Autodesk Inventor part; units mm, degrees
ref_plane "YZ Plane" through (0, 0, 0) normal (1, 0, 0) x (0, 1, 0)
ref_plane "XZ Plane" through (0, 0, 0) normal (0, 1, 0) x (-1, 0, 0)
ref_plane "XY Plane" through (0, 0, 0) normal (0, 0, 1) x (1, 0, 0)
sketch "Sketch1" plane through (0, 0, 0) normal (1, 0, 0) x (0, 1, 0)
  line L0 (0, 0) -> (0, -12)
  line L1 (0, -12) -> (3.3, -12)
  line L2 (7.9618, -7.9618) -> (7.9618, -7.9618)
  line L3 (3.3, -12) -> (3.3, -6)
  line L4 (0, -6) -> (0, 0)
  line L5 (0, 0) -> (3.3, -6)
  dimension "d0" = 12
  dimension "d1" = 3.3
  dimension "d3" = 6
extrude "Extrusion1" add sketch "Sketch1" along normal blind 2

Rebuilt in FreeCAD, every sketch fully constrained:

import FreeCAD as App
import Part
import Sketcher

V = App.Vector
Q = App.Units.Quantity


def add_polygon(sketch, points):
    """Adds a closed chain of lines whose ends are joined by coincident constraints."""
    first, n = sketch.GeometryCount, len(points)
    for a, b in zip(points, points[1:] + points[:1]):
        sketch.addGeometry(Part.LineSegment(App.Vector(*a, 0), App.Vector(*b, 0)), False)
    for i in range(n):
        sketch.addConstraint(Sketcher.Constraint("Coincident", first + i, 2, first + (i + 1) % n, 1))

doc = App.newDocument("Part")
body = doc.addObject("PartDesign::Body", "Body")

sketch1 = body.newObject("Sketcher::SketchObject", "Sketch")
sketch1.AttachmentSupport = (doc.getObject("YZ_Plane"), [""])
sketch1.MapMode = "FlatFace"
add_polygon(sketch1, [(3.3, -6), (0, 0), (0, -12), (3.3, -12)])
sketch1.addConstraint([
    Sketcher.Constraint("Vertical", 1),
    Sketcher.Constraint("Horizontal", 2),
    Sketcher.Constraint("Vertical", 3),
    Sketcher.Constraint("Coincident", 0, 2, -1, 1),
    Sketcher.Constraint("DistanceY", 1, 2, 1, 1, Q("12 mm")),
    Sketcher.Constraint("DistanceY", 3, 1, 3, 2, Q("6 mm")),
    Sketcher.Constraint("DistanceX", 2, 1, 2, 2, Q("3.3 mm")),
])
pad1 = body.newObject("PartDesign::Pad", "Pad")
pad1.Profile = sketch1
pad1.Length = 2

doc.recompute()
